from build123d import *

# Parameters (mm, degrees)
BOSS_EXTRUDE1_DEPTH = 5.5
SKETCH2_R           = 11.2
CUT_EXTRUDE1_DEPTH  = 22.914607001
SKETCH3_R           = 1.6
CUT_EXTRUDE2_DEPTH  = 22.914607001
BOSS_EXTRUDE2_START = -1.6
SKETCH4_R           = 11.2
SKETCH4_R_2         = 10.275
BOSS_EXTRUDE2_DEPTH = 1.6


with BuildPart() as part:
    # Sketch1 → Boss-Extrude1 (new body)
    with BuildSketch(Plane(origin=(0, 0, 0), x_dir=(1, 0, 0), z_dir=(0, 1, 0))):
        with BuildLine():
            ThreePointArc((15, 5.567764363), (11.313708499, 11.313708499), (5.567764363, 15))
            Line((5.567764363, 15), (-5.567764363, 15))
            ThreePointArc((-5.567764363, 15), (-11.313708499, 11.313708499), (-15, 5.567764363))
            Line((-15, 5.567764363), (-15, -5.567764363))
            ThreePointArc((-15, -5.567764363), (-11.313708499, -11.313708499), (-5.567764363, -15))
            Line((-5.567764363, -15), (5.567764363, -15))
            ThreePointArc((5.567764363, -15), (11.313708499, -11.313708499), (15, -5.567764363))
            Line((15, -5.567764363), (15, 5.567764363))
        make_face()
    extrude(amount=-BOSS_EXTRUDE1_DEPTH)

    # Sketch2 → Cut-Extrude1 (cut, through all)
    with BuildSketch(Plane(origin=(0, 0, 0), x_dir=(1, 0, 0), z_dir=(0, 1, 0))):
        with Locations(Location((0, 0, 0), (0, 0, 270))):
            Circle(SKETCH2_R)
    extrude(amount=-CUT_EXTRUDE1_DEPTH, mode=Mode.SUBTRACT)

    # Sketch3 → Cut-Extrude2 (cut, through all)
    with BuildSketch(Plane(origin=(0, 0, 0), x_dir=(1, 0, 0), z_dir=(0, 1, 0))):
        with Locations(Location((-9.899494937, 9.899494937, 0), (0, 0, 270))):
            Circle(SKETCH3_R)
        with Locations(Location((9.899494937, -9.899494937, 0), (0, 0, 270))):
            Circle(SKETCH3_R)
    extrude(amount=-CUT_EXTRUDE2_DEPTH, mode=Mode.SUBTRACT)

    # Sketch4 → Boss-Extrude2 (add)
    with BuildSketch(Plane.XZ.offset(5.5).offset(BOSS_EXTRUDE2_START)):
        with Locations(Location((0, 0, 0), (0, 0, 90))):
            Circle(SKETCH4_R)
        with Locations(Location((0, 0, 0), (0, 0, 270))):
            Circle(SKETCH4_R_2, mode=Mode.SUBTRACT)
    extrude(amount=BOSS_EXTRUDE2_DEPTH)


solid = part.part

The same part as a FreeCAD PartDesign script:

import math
import FreeCAD as App
import Part
import Sketcher
Q = App.Units.Quantity

doc = App.newDocument("Part")
body = doc.addObject("PartDesign::Body", "Body")

# Sketch on XZ plane
sketch1 = doc.addObject("Sketcher::SketchObject", "Sketch")
body.addObject(sketch1)
sketch1.AttachmentSupport = (doc.XZ_Plane, [""])
sketch1.MapMode = "FlatFace"
sketch1.addGeometry([
    Part.ArcOfCircle(Part.Circle(App.Vector(0, 0, 0), App.Vector(0, 0, 1), 16), math.radians(-70), math.radians(-20)),  # 0
    Part.LineSegment(App.Vector(6, -15, 0), App.Vector(-6, -15, 0)),  # 1
    Part.ArcOfCircle(Part.Circle(App.Vector(0, 0, 0), App.Vector(0, 0, 1), 16), math.radians(-160), math.radians(-110)),  # 2
    Part.LineSegment(App.Vector(-15, -6, 0), App.Vector(-15, 6, 0)),  # 3
    Part.ArcOfCircle(Part.Circle(App.Vector(0, 0, 0), App.Vector(0, 0, 1), 16), math.radians(110), math.radians(160)),  # 4
    Part.LineSegment(App.Vector(-6, 15, 0), App.Vector(6, 15, 0)),  # 5
    Part.ArcOfCircle(Part.Circle(App.Vector(0, 0, 0), App.Vector(0, 0, 1), 16), math.radians(20), math.radians(70)),  # 6
    Part.LineSegment(App.Vector(15, 6, 0), App.Vector(15, -6, 0)),  # 7
], False)
sketch1.addConstraint([
    Sketcher.Constraint("Coincident", 0, 1, 1, 1),
    Sketcher.Constraint("Coincident", 1, 2, 2, 2),
    Sketcher.Constraint("Coincident", 2, 1, 3, 1),
    Sketcher.Constraint("Coincident", 3, 2, 4, 2),
    Sketcher.Constraint("Coincident", 4, 1, 5, 1),
    Sketcher.Constraint("Coincident", 5, 2, 6, 2),
    Sketcher.Constraint("Coincident", 6, 1, 7, 1),
    Sketcher.Constraint("Coincident", 7, 2, 0, 2),
    Sketcher.Constraint("Horizontal", 1),
    Sketcher.Constraint("Vertical", 3),
    Sketcher.Constraint("Horizontal", 5),
    Sketcher.Constraint("Vertical", 7),
    Sketcher.Constraint("Coincident", 0, 3, -1, 1),
    Sketcher.Constraint("Coincident", 2, 3, -1, 1),
    Sketcher.Constraint("Coincident", 4, 3, -1, 1),
    Sketcher.Constraint("Coincident", 6, 3, -1, 1),
    Sketcher.Constraint("Equal", 0, 2),
    Sketcher.Constraint("Equal", 2, 4),
    Sketcher.Constraint("Equal", 4, 6),
    Sketcher.Constraint("Horizontal", 3, 2, 6, 1),
    Sketcher.Constraint("Vertical", 1, 2, 4, 1),
    Sketcher.Constraint("Equal", 5, 3),
    Sketcher.Constraint("Radius", 0, Q("16 mm")),
    Sketcher.Constraint("DistanceY", 0, 1, -1, 1, Q("15 mm")),
])
pad1 = doc.addObject("PartDesign::Pad", "Pad")
body.addObject(pad1)
pad1.Profile = sketch1
pad1.Length = 5.5

# Sketch on XZ plane
sketch2 = doc.addObject("Sketcher::SketchObject", "Sketch001")
body.addObject(sketch2)
sketch2.AttachmentSupport = (doc.XZ_Plane, [""])
sketch2.MapMode = "FlatFace"
sketch2.addGeometry(Part.Circle(App.Vector(0, 0, 0), App.Vector(0, 0, 1), 11), False)
sketch2.addConstraint([
    Sketcher.Constraint("Coincident", 0, 3, -1, 1),
    Sketcher.Constraint("Diameter", 0, Q("22.4 mm")),
])
pocket1 = doc.addObject("PartDesign::Pocket", "Pocket")
body.addObject(pocket1)
pocket1.Profile = sketch2
pocket1.Type = "ThroughAll"
pocket1.Reversed = True

# Sketch on XZ plane
sketch3 = doc.addObject("Sketcher::SketchObject", "Sketch002")
body.addObject(sketch3)
sketch3.AttachmentSupport = (doc.XZ_Plane, [""])
sketch3.MapMode = "FlatFace"
sketch3.addGeometry([
    Part.Circle(App.Vector(-9.9, -9.9, 0), App.Vector(0, 0, 1), 1.6),
    Part.Circle(App.Vector(9.9, 9.9, 0), App.Vector(0, 0, 1), 1.6),
], False)
sketch3.addConstraint([
    Sketcher.Constraint("Equal", 0, 1),
    Sketcher.Constraint("Symmetric", 0, 3, 1, 3, -1, 1),
    Sketcher.Constraint("Diameter", 0, Q("3.2 mm")),
    Sketcher.Constraint("DistanceX", 0, 3, 1, 3, Q("19.79899 mm")),
    Sketcher.Constraint("DistanceY", 0, 3, 1, 3, Q("19.79899 mm")),
])
pocket2 = doc.addObject("PartDesign::Pocket", "Pocket001")
body.addObject(pocket2)
pocket2.Profile = sketch3
pocket2.Type = "ThroughAll"
pocket2.Reversed = True

# Sketch on XZ plane
sketch4 = doc.addObject("Sketcher::SketchObject", "Sketch003")
body.addObject(sketch4)
sketch4.AttachmentSupport = (doc.XZ_Plane, [""])
sketch4.MapMode = "FlatFace"
sketch4.AttachmentOffset = App.Placement(App.Vector(0, 0, 3.9), App.Rotation())
sketch4.addGeometry([
    Part.Circle(App.Vector(0, 0, 0), App.Vector(0, 0, 1), 11),
    Part.Circle(App.Vector(0, 0, 0), App.Vector(0, 0, 1), 10),
], False)
sketch4.addConstraint([
    Sketcher.Constraint("Coincident", 0, 3, -1, 1),
    Sketcher.Constraint("Coincident", 1, 3, -1, 1),
    Sketcher.Constraint("Diameter", 0, Q("22.4 mm")),
    Sketcher.Constraint("Diameter", 1, Q("20.55 mm")),
])
pad2 = doc.addObject("PartDesign::Pad", "Pad001")
body.addObject(pad2)
pad2.Profile = sketch4
pad2.Length = 1.6

doc.recompute()
